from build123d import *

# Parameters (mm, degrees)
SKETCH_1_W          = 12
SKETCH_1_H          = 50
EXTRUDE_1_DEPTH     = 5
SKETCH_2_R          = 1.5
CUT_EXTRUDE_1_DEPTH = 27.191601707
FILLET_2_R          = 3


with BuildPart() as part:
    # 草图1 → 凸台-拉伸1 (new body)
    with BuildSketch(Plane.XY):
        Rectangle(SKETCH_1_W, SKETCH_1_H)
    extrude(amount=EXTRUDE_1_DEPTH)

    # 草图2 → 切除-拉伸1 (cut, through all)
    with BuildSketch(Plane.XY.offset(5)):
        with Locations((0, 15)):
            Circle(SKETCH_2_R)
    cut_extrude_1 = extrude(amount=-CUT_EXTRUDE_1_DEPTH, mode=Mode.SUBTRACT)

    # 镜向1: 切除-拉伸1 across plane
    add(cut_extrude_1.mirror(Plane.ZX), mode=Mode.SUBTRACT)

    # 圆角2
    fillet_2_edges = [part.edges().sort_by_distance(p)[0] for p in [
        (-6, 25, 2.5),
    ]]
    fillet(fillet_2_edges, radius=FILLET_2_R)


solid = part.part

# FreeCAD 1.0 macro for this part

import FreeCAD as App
import Part
import Sketcher
from FreeCAD import Vector


def edges_at(feature, points):
    """Names of the edges that pass closest to the given points."""
    edges = feature.Shape.Edges
    near = lambda p: min(range(len(edges)), key=lambda i: edges[i].distToShape(Part.Vertex(*p))[0])
    return sorted({f"Edge{near(p) + 1}" for p in points})


def add_polygon(sketch, points):
    """Adds a closed chain of lines whose ends are joined by coincident constraints."""
    first, n = sketch.GeometryCount, len(points)
    for a, b in zip(points, points[1:] + points[:1]):
        sketch.addGeometry(Part.LineSegment(App.Vector(*a, 0), App.Vector(*b, 0)), False)
    for i in range(n):
        sketch.addConstraint(Sketcher.Constraint("Coincident", first + i, 2, first + (i + 1) % n, 1))

doc = App.newDocument("Part")
body = doc.addObject("PartDesign::Body", "Body")

# Sketch on XY plane
sketch1 = body.newObject("Sketcher::SketchObject", "Sketch")
sketch1.AttachmentSupport = (doc.getObject("XY_Plane"), [""])
sketch1.MapMode = "FlatFace"
add_polygon(sketch1, [(-6, 25), (-6, -25), (6, -25), (6, 25)])  # lines 0-3
sketch1.addConstraint([
    Sketcher.Constraint("Vertical", 0),
    Sketcher.Constraint("Horizontal", 1),
    Sketcher.Constraint("Vertical", 2),
    Sketcher.Constraint("Horizontal", 3),
    Sketcher.Constraint("Symmetric", 0, 2, 2, 2, -1, 1),
    Sketcher.Constraint("DistanceX", 1, 1, 1, 2, 12.0),
    Sketcher.Constraint("DistanceY", 0, 2, 0, 1, 50.0),
])
pad1 = body.newObject("PartDesign::Pad", "Pad")
pad1.Profile = sketch1
pad1.Length = 5

# Sketch on XY plane
sketch2 = body.newObject("Sketcher::SketchObject", "Sketch001")
sketch2.AttachmentSupport = (doc.getObject("XY_Plane"), [""])
sketch2.MapMode = "FlatFace"
sketch2.AttachmentOffset = App.Placement(Vector(0, 0, 5), App.Rotation())
sketch2.addGeometry(Part.Circle(Vector(0, 15, 0), Vector(0, 0, 1), 1.5), False)
sketch2.addConstraint([
    Sketcher.Constraint("PointOnObject", 0, 3, -2),
    Sketcher.Constraint("Diameter", 0, 3.0),
    Sketcher.Constraint("DistanceY", -1, 1, 0, 3, 15.0),
])
pocket1 = body.newObject("PartDesign::Pocket", "Pocket")
pocket1.Profile = sketch2
pocket1.Type = "ThroughAll"
doc.recompute()

mirrored = body.newObject("PartDesign::Mirrored", "Mirrored")
mirrored.Originals = [pocket1]
mirrored.MirrorPlane = (doc.getObject("XZ_Plane"), [""])
body.Tip = mirrored
doc.recompute()

fillet = body.newObject("PartDesign::Fillet", "Fillet")
fillet.Base = (mirrored, edges_at(mirrored, [(-6, 25, 2.5)]))
fillet.Radius = 3

doc.recompute()
